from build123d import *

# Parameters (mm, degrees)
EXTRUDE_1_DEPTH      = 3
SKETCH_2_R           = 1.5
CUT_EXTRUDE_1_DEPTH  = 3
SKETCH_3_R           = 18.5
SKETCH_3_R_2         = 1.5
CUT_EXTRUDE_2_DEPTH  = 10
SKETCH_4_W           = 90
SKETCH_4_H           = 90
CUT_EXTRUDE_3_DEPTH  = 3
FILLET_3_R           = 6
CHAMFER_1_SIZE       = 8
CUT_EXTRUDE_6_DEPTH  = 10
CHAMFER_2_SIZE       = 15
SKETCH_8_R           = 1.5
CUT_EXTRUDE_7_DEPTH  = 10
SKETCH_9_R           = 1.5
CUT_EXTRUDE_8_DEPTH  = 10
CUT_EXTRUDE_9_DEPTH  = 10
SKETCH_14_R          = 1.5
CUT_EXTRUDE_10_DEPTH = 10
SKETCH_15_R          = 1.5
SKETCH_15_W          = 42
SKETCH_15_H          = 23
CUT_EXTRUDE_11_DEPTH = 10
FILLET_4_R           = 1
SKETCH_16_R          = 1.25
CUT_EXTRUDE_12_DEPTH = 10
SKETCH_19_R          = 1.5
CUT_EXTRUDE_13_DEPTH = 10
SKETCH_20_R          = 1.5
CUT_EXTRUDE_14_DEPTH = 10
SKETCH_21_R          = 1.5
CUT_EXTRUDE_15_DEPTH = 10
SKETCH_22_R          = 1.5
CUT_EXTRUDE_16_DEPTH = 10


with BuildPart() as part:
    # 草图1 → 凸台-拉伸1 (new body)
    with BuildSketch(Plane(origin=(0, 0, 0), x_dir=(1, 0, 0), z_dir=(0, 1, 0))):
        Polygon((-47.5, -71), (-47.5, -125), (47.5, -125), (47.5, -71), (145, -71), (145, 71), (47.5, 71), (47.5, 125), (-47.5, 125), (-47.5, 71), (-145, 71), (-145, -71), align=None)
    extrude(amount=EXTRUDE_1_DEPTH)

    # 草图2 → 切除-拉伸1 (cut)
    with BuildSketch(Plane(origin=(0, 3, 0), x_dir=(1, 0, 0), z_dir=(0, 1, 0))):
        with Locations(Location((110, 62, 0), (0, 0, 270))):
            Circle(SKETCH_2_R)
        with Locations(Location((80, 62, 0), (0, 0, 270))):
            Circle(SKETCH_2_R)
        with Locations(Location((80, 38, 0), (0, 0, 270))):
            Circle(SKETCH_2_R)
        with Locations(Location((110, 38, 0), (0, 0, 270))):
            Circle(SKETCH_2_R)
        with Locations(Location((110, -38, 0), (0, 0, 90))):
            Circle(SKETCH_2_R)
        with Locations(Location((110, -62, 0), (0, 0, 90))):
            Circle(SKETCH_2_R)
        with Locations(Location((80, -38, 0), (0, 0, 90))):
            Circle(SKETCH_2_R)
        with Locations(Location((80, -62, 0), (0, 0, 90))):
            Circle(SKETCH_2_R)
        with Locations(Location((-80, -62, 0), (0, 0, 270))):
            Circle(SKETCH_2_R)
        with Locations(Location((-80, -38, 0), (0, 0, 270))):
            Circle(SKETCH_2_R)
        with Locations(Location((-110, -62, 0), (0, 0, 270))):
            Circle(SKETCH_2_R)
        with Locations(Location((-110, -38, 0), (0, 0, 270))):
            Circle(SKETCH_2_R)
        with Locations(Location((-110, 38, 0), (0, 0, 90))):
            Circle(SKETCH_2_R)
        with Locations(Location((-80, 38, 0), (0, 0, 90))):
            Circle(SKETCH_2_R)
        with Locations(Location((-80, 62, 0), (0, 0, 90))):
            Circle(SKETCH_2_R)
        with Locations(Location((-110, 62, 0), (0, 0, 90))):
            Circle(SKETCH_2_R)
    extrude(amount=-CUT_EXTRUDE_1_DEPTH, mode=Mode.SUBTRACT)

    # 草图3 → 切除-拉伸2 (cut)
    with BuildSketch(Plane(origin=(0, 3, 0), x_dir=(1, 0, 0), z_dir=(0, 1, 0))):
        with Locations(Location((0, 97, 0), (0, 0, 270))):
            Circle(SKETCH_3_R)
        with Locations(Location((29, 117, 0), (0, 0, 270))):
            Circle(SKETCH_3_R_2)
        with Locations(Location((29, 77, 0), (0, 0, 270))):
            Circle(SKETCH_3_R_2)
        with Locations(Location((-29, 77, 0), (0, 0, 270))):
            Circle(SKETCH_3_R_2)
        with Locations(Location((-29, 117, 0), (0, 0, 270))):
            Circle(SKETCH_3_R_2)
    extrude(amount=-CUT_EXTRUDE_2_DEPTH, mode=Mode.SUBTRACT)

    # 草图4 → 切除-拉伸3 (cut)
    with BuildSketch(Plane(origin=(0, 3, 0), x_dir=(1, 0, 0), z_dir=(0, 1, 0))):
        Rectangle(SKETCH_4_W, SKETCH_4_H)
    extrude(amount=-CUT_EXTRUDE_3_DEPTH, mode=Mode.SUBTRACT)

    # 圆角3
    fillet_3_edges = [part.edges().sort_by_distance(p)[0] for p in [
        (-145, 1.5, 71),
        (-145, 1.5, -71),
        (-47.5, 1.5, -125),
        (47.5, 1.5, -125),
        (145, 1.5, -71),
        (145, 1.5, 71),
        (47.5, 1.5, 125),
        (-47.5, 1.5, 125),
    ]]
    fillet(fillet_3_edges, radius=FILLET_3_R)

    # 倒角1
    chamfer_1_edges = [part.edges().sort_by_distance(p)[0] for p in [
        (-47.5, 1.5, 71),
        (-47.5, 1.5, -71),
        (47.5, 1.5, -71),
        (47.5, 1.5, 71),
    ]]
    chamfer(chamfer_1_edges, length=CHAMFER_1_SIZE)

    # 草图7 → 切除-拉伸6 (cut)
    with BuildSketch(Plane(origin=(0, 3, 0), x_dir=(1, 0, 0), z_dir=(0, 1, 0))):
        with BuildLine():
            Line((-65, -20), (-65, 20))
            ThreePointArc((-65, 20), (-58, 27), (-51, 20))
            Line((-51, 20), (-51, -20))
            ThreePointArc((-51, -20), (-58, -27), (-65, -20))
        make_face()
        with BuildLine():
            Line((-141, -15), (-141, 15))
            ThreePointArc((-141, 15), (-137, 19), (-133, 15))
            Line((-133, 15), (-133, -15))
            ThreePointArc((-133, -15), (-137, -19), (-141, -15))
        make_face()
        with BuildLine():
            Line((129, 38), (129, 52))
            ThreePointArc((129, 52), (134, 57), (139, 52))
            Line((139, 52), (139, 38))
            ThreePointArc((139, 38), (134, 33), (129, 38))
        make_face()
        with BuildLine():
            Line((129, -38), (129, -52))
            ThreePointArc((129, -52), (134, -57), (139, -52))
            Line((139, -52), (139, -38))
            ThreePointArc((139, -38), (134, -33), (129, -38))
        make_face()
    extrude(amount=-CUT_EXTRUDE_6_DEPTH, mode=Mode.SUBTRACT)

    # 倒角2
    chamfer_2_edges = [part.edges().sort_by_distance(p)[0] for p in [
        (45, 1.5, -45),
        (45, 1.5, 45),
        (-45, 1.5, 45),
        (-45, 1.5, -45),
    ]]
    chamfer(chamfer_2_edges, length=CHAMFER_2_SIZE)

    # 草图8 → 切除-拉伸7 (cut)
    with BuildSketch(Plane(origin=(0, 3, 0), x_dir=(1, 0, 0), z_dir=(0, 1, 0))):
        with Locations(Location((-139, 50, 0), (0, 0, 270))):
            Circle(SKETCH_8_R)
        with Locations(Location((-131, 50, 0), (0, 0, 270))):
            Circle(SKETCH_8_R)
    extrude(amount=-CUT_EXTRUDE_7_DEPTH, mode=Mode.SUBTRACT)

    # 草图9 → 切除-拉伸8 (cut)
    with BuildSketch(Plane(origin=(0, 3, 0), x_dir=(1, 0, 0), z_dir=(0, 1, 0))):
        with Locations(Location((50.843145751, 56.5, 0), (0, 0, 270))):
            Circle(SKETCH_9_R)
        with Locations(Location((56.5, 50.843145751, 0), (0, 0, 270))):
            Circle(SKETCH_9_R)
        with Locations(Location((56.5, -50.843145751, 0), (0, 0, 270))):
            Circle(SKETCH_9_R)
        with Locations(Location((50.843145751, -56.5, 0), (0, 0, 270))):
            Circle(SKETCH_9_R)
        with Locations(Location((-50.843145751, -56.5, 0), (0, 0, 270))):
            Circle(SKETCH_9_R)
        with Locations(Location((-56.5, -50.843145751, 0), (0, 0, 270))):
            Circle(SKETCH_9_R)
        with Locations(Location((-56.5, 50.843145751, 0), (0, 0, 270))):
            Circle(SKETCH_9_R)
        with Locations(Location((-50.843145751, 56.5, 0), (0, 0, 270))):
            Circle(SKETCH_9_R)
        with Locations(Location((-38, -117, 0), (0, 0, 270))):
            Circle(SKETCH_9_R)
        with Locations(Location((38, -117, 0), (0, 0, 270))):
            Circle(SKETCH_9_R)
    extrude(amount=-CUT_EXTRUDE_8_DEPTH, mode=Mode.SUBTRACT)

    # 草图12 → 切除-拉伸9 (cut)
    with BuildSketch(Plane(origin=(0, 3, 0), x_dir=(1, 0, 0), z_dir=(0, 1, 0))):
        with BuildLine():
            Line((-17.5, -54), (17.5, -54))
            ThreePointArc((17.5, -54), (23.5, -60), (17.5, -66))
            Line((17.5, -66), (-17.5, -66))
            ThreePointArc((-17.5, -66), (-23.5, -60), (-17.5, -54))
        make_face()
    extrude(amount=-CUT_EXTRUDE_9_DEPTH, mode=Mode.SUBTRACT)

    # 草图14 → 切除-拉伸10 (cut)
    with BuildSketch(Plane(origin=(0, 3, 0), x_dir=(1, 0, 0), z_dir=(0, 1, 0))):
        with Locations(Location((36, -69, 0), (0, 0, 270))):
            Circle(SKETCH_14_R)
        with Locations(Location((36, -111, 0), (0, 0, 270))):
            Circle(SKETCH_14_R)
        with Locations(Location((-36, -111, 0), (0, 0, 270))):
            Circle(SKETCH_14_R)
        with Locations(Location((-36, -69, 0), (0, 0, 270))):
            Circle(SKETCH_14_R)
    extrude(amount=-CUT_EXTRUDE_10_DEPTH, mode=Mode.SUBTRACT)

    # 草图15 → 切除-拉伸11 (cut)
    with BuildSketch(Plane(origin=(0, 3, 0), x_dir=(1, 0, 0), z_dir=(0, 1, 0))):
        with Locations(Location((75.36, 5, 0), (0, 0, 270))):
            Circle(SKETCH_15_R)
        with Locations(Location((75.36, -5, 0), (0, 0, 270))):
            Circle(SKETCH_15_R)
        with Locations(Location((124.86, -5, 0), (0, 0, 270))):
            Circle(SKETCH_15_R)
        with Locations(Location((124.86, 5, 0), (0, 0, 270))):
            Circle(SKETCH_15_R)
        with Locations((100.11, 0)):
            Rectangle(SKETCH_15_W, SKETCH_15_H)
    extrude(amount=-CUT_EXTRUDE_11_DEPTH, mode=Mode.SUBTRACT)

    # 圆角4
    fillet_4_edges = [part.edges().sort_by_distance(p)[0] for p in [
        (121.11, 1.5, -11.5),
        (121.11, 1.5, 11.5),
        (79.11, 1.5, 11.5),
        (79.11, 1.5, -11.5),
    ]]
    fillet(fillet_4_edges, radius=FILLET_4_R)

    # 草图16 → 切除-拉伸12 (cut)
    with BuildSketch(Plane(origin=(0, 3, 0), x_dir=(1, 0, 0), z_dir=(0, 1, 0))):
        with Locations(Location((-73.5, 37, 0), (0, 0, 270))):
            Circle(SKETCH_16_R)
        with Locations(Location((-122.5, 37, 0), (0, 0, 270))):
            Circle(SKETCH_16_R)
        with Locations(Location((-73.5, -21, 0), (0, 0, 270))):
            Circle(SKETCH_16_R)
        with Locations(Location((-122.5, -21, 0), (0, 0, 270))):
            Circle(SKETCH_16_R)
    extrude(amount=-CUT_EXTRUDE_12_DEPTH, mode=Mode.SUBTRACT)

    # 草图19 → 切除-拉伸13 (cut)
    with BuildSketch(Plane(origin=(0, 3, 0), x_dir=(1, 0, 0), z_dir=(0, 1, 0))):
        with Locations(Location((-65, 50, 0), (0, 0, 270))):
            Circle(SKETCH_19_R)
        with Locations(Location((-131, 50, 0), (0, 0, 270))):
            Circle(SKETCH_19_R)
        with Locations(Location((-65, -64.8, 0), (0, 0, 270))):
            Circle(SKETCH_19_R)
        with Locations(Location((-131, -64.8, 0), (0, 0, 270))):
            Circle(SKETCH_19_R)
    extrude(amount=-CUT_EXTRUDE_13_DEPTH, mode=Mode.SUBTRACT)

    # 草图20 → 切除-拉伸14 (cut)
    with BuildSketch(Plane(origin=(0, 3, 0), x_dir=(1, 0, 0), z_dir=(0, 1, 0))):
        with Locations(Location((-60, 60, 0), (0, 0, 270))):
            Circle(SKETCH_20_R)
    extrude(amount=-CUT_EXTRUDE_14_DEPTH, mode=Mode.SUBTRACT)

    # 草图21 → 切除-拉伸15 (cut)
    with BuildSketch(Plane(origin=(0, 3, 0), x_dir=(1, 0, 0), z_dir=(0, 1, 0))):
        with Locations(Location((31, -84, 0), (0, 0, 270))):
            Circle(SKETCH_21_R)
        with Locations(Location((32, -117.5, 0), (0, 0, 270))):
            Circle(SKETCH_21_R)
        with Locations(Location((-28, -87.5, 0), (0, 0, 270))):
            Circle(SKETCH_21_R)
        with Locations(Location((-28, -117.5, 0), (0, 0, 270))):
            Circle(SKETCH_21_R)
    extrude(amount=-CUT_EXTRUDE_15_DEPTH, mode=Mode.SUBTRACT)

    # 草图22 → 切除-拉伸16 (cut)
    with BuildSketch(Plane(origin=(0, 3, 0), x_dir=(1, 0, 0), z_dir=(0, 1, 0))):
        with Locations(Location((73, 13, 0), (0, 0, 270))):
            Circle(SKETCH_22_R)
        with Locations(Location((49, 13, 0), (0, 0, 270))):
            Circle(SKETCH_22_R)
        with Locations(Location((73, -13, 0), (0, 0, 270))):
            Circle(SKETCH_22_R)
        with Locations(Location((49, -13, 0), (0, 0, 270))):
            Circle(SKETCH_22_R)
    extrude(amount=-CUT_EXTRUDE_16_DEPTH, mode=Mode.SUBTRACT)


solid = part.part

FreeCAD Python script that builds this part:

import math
import FreeCAD as App
import Part
import Sketcher
from FreeCAD import Vector
Q = App.Units.Quantity


def edges_at(feature, points):
    """Names of the edges that pass closest to the given points."""
    edges = feature.Shape.Edges
    near = lambda p: min(range(len(edges)), key=lambda i: edges[i].distToShape(Part.Vertex(*p))[0])
    return sorted({f"Edge{near(p) + 1}" for p in points})

doc = App.newDocument("Part")
body = doc.addObject("PartDesign::Body", "Body")

sketch1 = body.newObject("Sketcher::SketchObject", "Sketch")
sketch1.AttachmentSupport = (doc.getObject("XZ_Plane"), [""])
sketch1.MapMode = "FlatFace"
sketch1.addGeometry([
    Part.LineSegment(Vector(-48, 71, 0), Vector(-48, 125, 0)),
    Part.LineSegment(Vector(-48, 125, 0), Vector(48, 125, 0)),
    Part.LineSegment(Vector(48, 125, 0), Vector(48, 71, 0)),
    Part.LineSegment(Vector(48, 71, 0), Vector(145, 71, 0)),
    Part.LineSegment(Vector(145, 71, 0), Vector(145, -71, 0)),
    Part.LineSegment(Vector(145, -71, 0), Vector(48, -71, 0)),
    Part.LineSegment(Vector(48, -71, 0), Vector(48, -125, 0)),
    Part.LineSegment(Vector(48, -125, 0), Vector(-48, -125, 0)),
    Part.LineSegment(Vector(-48, -125, 0), Vector(-48, -71, 0)),
    Part.LineSegment(Vector(-48, -71, 0), Vector(-145, -71, 0)),
    Part.LineSegment(Vector(-145, -71, 0), Vector(-145, 71, 0)),
    Part.LineSegment(Vector(-145, 71, 0), Vector(-48, 71, 0)),
], False)
sketch1.addConstraint([
    Sketcher.Constraint("Coincident", 0, 2, 1, 1),
    Sketcher.Constraint("Coincident", 1, 2, 2, 1),
    Sketcher.Constraint("Coincident", 2, 2, 3, 1),
    Sketcher.Constraint("Coincident", 3, 2, 4, 1),
    Sketcher.Constraint("Coincident", 4, 2, 5, 1),
    Sketcher.Constraint("Coincident", 5, 2, 6, 1),
    Sketcher.Constraint("Coincident", 6, 2, 7, 1),
    Sketcher.Constraint("Coincident", 7, 2, 8, 1),
    Sketcher.Constraint("Coincident", 8, 2, 9, 1),
    Sketcher.Constraint("Coincident", 9, 2, 10, 1),
    Sketcher.Constraint("Coincident", 10, 2, 11, 1),
    Sketcher.Constraint("Coincident", 11, 2, 0, 1),
    Sketcher.Constraint("Vertical", 0),
    Sketcher.Constraint("Horizontal", 1),
    Sketcher.Constraint("Vertical", 2),
    Sketcher.Constraint("Horizontal", 3),
    Sketcher.Constraint("Vertical", 4),
    Sketcher.Constraint("Horizontal", 5),
    Sketcher.Constraint("Vertical", 6),
    Sketcher.Constraint("Horizontal", 7),
    Sketcher.Constraint("Vertical", 8),
    Sketcher.Constraint("Horizontal", 9),
    Sketcher.Constraint("Vertical", 10),
    Sketcher.Constraint("Horizontal", 11),
    Sketcher.Constraint("Symmetric", 0, 2, 6, 2, -1, 1),
    Sketcher.Constraint("Symmetric", 2, 2, 8, 2, -1, 1),
    Sketcher.Constraint("Symmetric", 4, 2, 10, 2, -1, 1),
    Sketcher.Constraint("Symmetric", 5, 2, 8, 2, -2),
    Sketcher.Constraint("DistanceX", 1, 1, 1, 2, Q("95 mm")),
    Sketcher.Constraint("DistanceY", 0, 1, 0, 2, Q("54 mm")),
    Sketcher.Constraint("DistanceY", 4, 2, 4, 1, Q("142 mm")),
    Sketcher.Constraint("DistanceX", 3, 1, 3, 2, Q("97.5 mm")),
])
pad1 = body.newObject("PartDesign::Pad", "Pad")
pad1.Profile = sketch1
pad1.Length = 3
pad1.Reversed = True

sketch2 = body.newObject("Sketcher::SketchObject", "Sketch001")
sketch2.AttachmentSupport = (doc.getObject("XZ_Plane"), [""])
sketch2.MapMode = "FlatFace"
sketch2.AttachmentOffset = App.Placement(Vector(0, 0, -3), App.Rotation())
sketch2.addGeometry([
    Part.Circle(Vector(110, -62, 0), Vector(0, 0, 1), 1.5),
    Part.Circle(Vector(80, -62, 0), Vector(0, 0, 1), 1.5),
    Part.Circle(Vector(80, -38, 0), Vector(0, 0, 1), 1.5),
    Part.Circle(Vector(110, -38, 0), Vector(0, 0, 1), 1.5),
    Part.Circle(Vector(110, 38, 0), Vector(0, 0, 1), 1.5),
    Part.Circle(Vector(110, 62, 0), Vector(0, 0, 1), 1.5),
    Part.Circle(Vector(80, 38, 0), Vector(0, 0, 1), 1.5),
    Part.Circle(Vector(80, 62, 0), Vector(0, 0, 1), 1.5),
    Part.Circle(Vector(-80, 62, 0), Vector(0, 0, 1), 1.5),
    Part.Circle(Vector(-80, 38, 0), Vector(0, 0, 1), 1.5),
    Part.Circle(Vector(-110, 62, 0), Vector(0, 0, 1), 1.5),
    Part.Circle(Vector(-110, 38, 0), Vector(0, 0, 1), 1.5),
    Part.Circle(Vector(-110, -38, 0), Vector(0, 0, 1), 1.5),
    Part.Circle(Vector(-80, -38, 0), Vector(0, 0, 1), 1.5),
    Part.Circle(Vector(-80, -62, 0), Vector(0, 0, 1), 1.5),
    Part.Circle(Vector(-110, -62, 0), Vector(0, 0, 1), 1.5),
], False)
sketch2.addConstraint([
    Sketcher.Constraint("Equal", 0, 1),
    Sketcher.Constraint("Equal", 1, 2),
    Sketcher.Constraint("Equal", 2, 3),
    Sketcher.Constraint("Equal", 3, 4),
    Sketcher.Constraint("Equal", 4, 5),
    Sketcher.Constraint("Equal", 5, 6),
    Sketcher.Constraint("Equal", 6, 7),
    Sketcher.Constraint("Equal", 7, 8),
    Sketcher.Constraint("Equal", 8, 9),
    Sketcher.Constraint("Equal", 9, 10),
    Sketcher.Constraint("Equal", 10, 11),
    Sketcher.Constraint("Equal", 11, 12),
    Sketcher.Constraint("Equal", 12, 13),
    Sketcher.Constraint("Equal", 13, 14),
    Sketcher.Constraint("Equal", 14, 15),
    Sketcher.Constraint("Symmetric", 1, 3, 8, 3, -1, 1),
    Sketcher.Constraint("Symmetric", 2, 3, 9, 3, -1, 1),
    Sketcher.Constraint("Symmetric", 0, 3, 10, 3, -1, 1),
    Sketcher.Constraint("Symmetric", 3, 3, 11, 3, -1, 1),
    Sketcher.Constraint("Symmetric", 4, 3, 12, 3, -1, 1),
    Sketcher.Constraint("Symmetric", 6, 3, 13, 3, -1, 1),
    Sketcher.Constraint("Symmetric", 7, 3, 14, 3, -1, 1),
    Sketcher.Constraint("Symmetric", 5, 3, 15, 3, -1, 1),
    Sketcher.Constraint("Symmetric", 7, 3, 8, 3, -2),
    Sketcher.Constraint("Symmetric", 6, 3, 9, 3, -2),
    Sketcher.Constraint("Symmetric", 5, 3, 10, 3, -2),
    Sketcher.Constraint("Symmetric", 4, 3, 11, 3, -2),
    Sketcher.Constraint("Horizontal", 0, 3, 1, 3),
    Sketcher.Constraint("Horizontal", 2, 3, 3, 3),
    Sketcher.Constraint("Vertical", 1, 3, 2, 3),
    Sketcher.Constraint("Vertical", 0, 3, 3, 3),
    Sketcher.Constraint("Diameter", 0, Q("3 mm")),
    Sketcher.Constraint("DistanceX", -1, 1, 0, 3, Q("110 mm")),
    Sketcher.Constraint("DistanceY", 0, 3, -1, 1, Q("62 mm")),
    Sketcher.Constraint("DistanceX", -1, 1, 1, 3, Q("80 mm")),
    Sketcher.Constraint("DistanceY", 2, 3, -1, 1, Q("38 mm")),
])
pocket1 = body.newObject("PartDesign::Pocket", "Pocket")
pocket1.Profile = sketch2
pocket1.Length = 3
pocket1.Reversed = True

sketch3 = body.newObject("Sketcher::SketchObject", "Sketch002")
sketch3.AttachmentSupport = (doc.getObject("XZ_Plane"), [""])
sketch3.MapMode = "FlatFace"
sketch3.AttachmentOffset = App.Placement(Vector(0, 0, -3), App.Rotation())
sketch3.addGeometry([
    Part.Circle(Vector(0, -97, 0), Vector(0, 0, 1), 18.5),
    Part.Circle(Vector(29, -117, 0), Vector(0, 0, 1), 1.5),
    Part.Circle(Vector(29, -77, 0), Vector(0, 0, 1), 1.5),
    Part.Circle(Vector(-29, -77, 0), Vector(0, 0, 1), 1.5),
    Part.Circle(Vector(-29, -117, 0), Vector(0, 0, 1), 1.5),
], False)
sketch3.addConstraint([
    Sketcher.Constraint("Equal", 1, 2),
    Sketcher.Constraint("Equal", 2, 3),
    Sketcher.Constraint("Equal", 3, 4),
    Sketcher.Constraint("Symmetric", 2, 3, 3, 3, -2),
    Sketcher.Constraint("Symmetric", 1, 3, 4, 3, -2),
    Sketcher.Constraint("PointOnObject", 0, 3, -2),
    Sketcher.Constraint("Vertical", 1, 3, 2, 3),
    Sketcher.Constraint("Diameter", 0, Q("37 mm")),
    Sketcher.Constraint("Diameter", 1, Q("3 mm")),
    Sketcher.Constraint("DistanceY", 0, 3, -1, 1, Q("97 mm")),
    Sketcher.Constraint("DistanceX", -1, 1, 1, 3, Q("29 mm")),
    Sketcher.Constraint("DistanceY", 1, 3, -1, 1, Q("117 mm")),
    Sketcher.Constraint("DistanceY", 2, 3, -1, 1, Q("77 mm")),
])
pocket2 = body.newObject("PartDesign::Pocket", "Pocket001")
pocket2.Profile = sketch3
pocket2.Length = 10
pocket2.Reversed = True

sketch4 = body.newObject("Sketcher::SketchObject", "Sketch003")
sketch4.AttachmentSupport = (doc.getObject("XZ_Plane"), [""])
sketch4.MapMode = "FlatFace"
sketch4.AttachmentOffset = App.Placement(Vector(0, 0, -3), App.Rotation())
sketch4.addGeometry([
    Part.LineSegment(Vector(-45, -45, 0), Vector(-45, 45, 0)),
    Part.LineSegment(Vector(-45, 45, 0), Vector(45, 45, 0)),
    Part.LineSegment(Vector(45, 45, 0), Vector(45, -45, 0)),
    Part.LineSegment(Vector(45, -45, 0), Vector(-45, -45, 0)),
], False)
sketch4.addConstraint([
    Sketcher.Constraint("Coincident", 0, 2, 1, 1),
    Sketcher.Constraint("Coincident", 1, 2, 2, 1),
    Sketcher.Constraint("Coincident", 2, 2, 3, 1),
    Sketcher.Constraint("Coincident", 3, 2, 0, 1),
    Sketcher.Constraint("Vertical", 0),
    Sketcher.Constraint("Horizontal", 1),
    Sketcher.Constraint("Vertical", 2),
    Sketcher.Constraint("Horizontal", 3),
    Sketcher.Constraint("Symmetric", 0, 2, 2, 2, -1, 1),
    Sketcher.Constraint("Equal", 3, 0),
    Sketcher.Constraint("DistanceX", 1, 1, 1, 2, Q("90 mm")),
])
pocket3 = body.newObject("PartDesign::Pocket", "Pocket002")
pocket3.Profile = sketch4
pocket3.Length = 3
pocket3.Reversed = True
doc.recompute()

fillet = body.newObject("PartDesign::Fillet", "Fillet")
fillet.Base = (pocket3, edges_at(pocket3, [
    (-145, 1.5, 71),
    (-145, 1.5, -71),
    (-47.5, 1.5, -125),
    (47.5, 1.5, -125),
    (145, 1.5, -71),
    (145, 1.5, 71),
    (47.5, 1.5, 125),
    (-47.5, 1.5, 125),
]))
fillet.Radius = 6
doc.recompute()

chamfer = body.newObject("PartDesign::Chamfer", "Chamfer")
chamfer.Base = (fillet, edges_at(fillet, [
    (-47.5, 1.5, 71),
    (-47.5, 1.5, -71),
    (47.5, 1.5, -71),
    (47.5, 1.5, 71),
]))
chamfer.Size = 8

sketch5 = body.newObject("Sketcher::SketchObject", "Sketch004")
sketch5.AttachmentSupport = (doc.getObject("XZ_Plane"), [""])
sketch5.MapMode = "FlatFace"
sketch5.AttachmentOffset = App.Placement(Vector(0, 0, -3), App.Rotation())
sketch5.addGeometry([
    Part.LineSegment(Vector(-65, -20, 0), Vector(-65, 20, 0)),
    Part.ArcOfCircle(Part.Circle(Vector(-58, 20, 0), Vector(0, 0, 1), 7), math.radians(0), math.radians(180)),
    Part.LineSegment(Vector(-51, 20, 0), Vector(-51, -20, 0)),
    Part.ArcOfCircle(Part.Circle(Vector(-58, -20, 0), Vector(0, 0, 1), 7), math.radians(180), math.radians(360)),
    Part.LineSegment(Vector(-141, -15, 0), Vector(-141, 15, 0)),
    Part.ArcOfCircle(Part.Circle(Vector(-137, 15, 0), Vector(0, 0, 1), 4), math.radians(0), math.radians(180)),
    Part.LineSegment(Vector(-133, 15, 0), Vector(-133, -15, 0)),
    Part.ArcOfCircle(Part.Circle(Vector(-137, -15, 0), Vector(0, 0, 1), 4), math.radians(180), math.radians(360)),
    Part.LineSegment(Vector(129, -52, 0), Vector(129, -38, 0)),
    Part.ArcOfCircle(Part.Circle(Vector(134, -38, 0), Vector(0, 0, 1), 5), math.radians(0), math.radians(180)),
    Part.LineSegment(Vector(139, -38, 0), Vector(139, -52, 0)),
    Part.ArcOfCircle(Part.Circle(Vector(134, -52, 0), Vector(0, 0, 1), 5), math.radians(180), math.radians(360)),
    Part.LineSegment(Vector(129, 38, 0), Vector(129, 52, 0)),
    Part.ArcOfCircle(Part.Circle(Vector(134, 52, 0), Vector(0, 0, 1), 5), math.radians(0), math.radians(180)),
    Part.LineSegment(Vector(139, 52, 0), Vector(139, 38, 0)),
    Part.ArcOfCircle(Part.Circle(Vector(134, 38, 0), Vector(0, 0, 1), 5), math.radians(180), math.radians(360)),
], False)
sketch5.addConstraint([
    Sketcher.Constraint("Tangent", 0, 2, 1, 2),
    Sketcher.Constraint("Tangent", 1, 1, 2, 1),
    Sketcher.Constraint("Tangent", 2, 2, 3, 2),
    Sketcher.Constraint("Tangent", 3, 1, 0, 1),
    Sketcher.Constraint("Tangent", 4, 2, 5, 2),
    Sketcher.Constraint("Tangent", 5, 1, 6, 1),
    Sketcher.Constraint("Tangent", 6, 2, 7, 2),
    Sketcher.Constraint("Tangent", 7, 1, 4, 1),
    Sketcher.Constraint("Tangent", 8, 2, 9, 2),
    Sketcher.Constraint("Tangent", 9, 1, 10, 1),
    Sketcher.Constraint("Tangent", 10, 2, 11, 2),
    Sketcher.Constraint("Tangent", 11, 1, 8, 1),
    Sketcher.Constraint("Tangent", 12, 2, 13, 2),
    Sketcher.Constraint("Tangent", 13, 1, 14, 1),
    Sketcher.Constraint("Tangent", 14, 2, 15, 2),
    Sketcher.Constraint("Tangent", 15, 1, 12, 1),
    Sketcher.Constraint("Vertical", 0),
    Sketcher.Constraint("Vertical", 2),
    Sketcher.Constraint("Vertical", 4),
    Sketcher.Constraint("Vertical", 6),
    Sketcher.Constraint("Vertical", 8),
    Sketcher.Constraint("Vertical", 10),
    Sketcher.Constraint("Vertical", 12),
    Sketcher.Constraint("Vertical", 14),
    Sketcher.Constraint("Equal", 11, 13),
    Sketcher.Constraint("Symmetric", 11, 3, 13, 3, -1),
    Sketcher.Constraint("Equal", 10, 12),
    Sketcher.Constraint("Radius", 1, Q("7 mm")),
    Sketcher.Constraint("Radius", 5, Q("4 mm")),
    Sketcher.Constraint("Radius", 9, Q("5 mm")),
    Sketcher.Constraint("DistanceY", 0, 1, 0, 2, Q("40 mm")),
    Sketcher.Constraint("DistanceY", 4, 1, 4, 2, Q("30 mm")),
    Sketcher.Constraint("DistanceY", 8, 1, 8, 2, Q("14 mm")),
    Sketcher.Constraint("DistanceX", 1, 3, -1, 1, Q("58 mm")),
    Sketcher.Constraint("DistanceY", -1, 1, 1, 3, Q("20 mm")),
    Sketcher.Constraint("DistanceX", 5, 3, -1, 1, Q("137 mm")),
    Sketcher.Constraint("DistanceY", -1, 1, 5, 3, Q("15 mm")),
    Sketcher.Constraint("DistanceX", -1, 1, 9, 3, Q("134 mm")),
    Sketcher.Constraint("DistanceY", 9, 3, -1, 1, Q("38 mm")),
])
pocket4 = body.newObject("PartDesign::Pocket", "Pocket003")
pocket4.Profile = sketch5
pocket4.Length = 10
pocket4.Reversed = True
doc.recompute()

chamfer2 = body.newObject("PartDesign::Chamfer", "Chamfer001")
chamfer2.Base = (pocket4, edges_at(pocket4, [
    (45, 1.5, -45),
    (45, 1.5, 45),
    (-45, 1.5, 45),
    (-45, 1.5, -45),
]))
chamfer2.Size = 15

sketch6 = body.newObject("Sketcher::SketchObject", "Sketch005")
sketch6.AttachmentSupport = (doc.getObject("XZ_Plane"), [""])
sketch6.MapMode = "FlatFace"
sketch6.AttachmentOffset = App.Placement(Vector(0, 0, -3), App.Rotation())
sketch6.addGeometry([
    Part.Circle(Vector(-139, -50, 0), Vector(0, 0, 1), 1.5),
    Part.Circle(Vector(-131, -50, 0), Vector(0, 0, 1), 1.5),
], False)
sketch6.addConstraint([
    Sketcher.Constraint("Equal", 0, 1),
    Sketcher.Constraint("Horizontal", 0, 3, 1, 3),
    Sketcher.Constraint("Diameter", 0, Q("3 mm")),
    Sketcher.Constraint("DistanceX", 0, 3, -1, 1, Q("139 mm")),
    Sketcher.Constraint("DistanceY", 0, 3, -1, 1, Q("50 mm")),
    Sketcher.Constraint("DistanceX", 1, 3, -1, 1, Q("131 mm")),
])
pocket5 = body.newObject("PartDesign::Pocket", "Pocket004")
pocket5.Profile = sketch6
pocket5.Length = 10
pocket5.Reversed = True

sketch7 = body.newObject("Sketcher::SketchObject", "Sketch006")
sketch7.AttachmentSupport = (doc.getObject("XZ_Plane"), [""])
sketch7.MapMode = "FlatFace"
sketch7.AttachmentOffset = App.Placement(Vector(0, 0, -3), App.Rotation())
sketch7.addGeometry([
    Part.Circle(Vector(50.8, -56.5, 0), Vector(0, 0, 1), 1.5),
    Part.Circle(Vector(56.5, -50.8, 0), Vector(0, 0, 1), 1.5),
    Part.Circle(Vector(56.5, 50.8, 0), Vector(0, 0, 1), 1.5),
    Part.Circle(Vector(50.8, 56.5, 0), Vector(0, 0, 1), 1.5),
    Part.Circle(Vector(-50.8, 56.5, 0), Vector(0, 0, 1), 1.5),
    Part.Circle(Vector(-56.5, 50.8, 0), Vector(0, 0, 1), 1.5),
    Part.Circle(Vector(-56.5, -50.8, 0), Vector(0, 0, 1), 1.5),
    Part.Circle(Vector(-50.8, -56.5, 0), Vector(0, 0, 1), 1.5),
    Part.Circle(Vector(-38, 117, 0), Vector(0, 0, 1), 1.5),
    Part.Circle(Vector(38, 117, 0), Vector(0, 0, 1), 1.5),
], False)
sketch7.addConstraint([
    Sketcher.Constraint("Equal", 0, 1),
    Sketcher.Constraint("Equal", 1, 2),
    Sketcher.Constraint("Equal", 2, 3),
    Sketcher.Constraint("Equal", 3, 4),
    Sketcher.Constraint("Equal", 4, 5),
    Sketcher.Constraint("Equal", 5, 6),
    Sketcher.Constraint("Equal", 6, 7),
    Sketcher.Constraint("Equal", 7, 8),
    Sketcher.Constraint("Equal", 8, 9),
    Sketcher.Constraint("Symmetric", 0, 3, 4, 3, -1, 1),
    Sketcher.Constraint("Symmetric", 1, 3, 5, 3, -1, 1),
    Sketcher.Constraint("Symmetric", 2, 3, 6, 3, -1, 1),
    Sketcher.Constraint("Symmetric", 3, 3, 7, 3, -1, 1),
    Sketcher.Constraint("Symmetric", 3, 3, 4, 3, -2),
    Sketcher.Constraint("Symmetric", 2, 3, 5, 3, -2),
    Sketcher.Constraint("Symmetric", 8, 3, 9, 3, -2),
    Sketcher.Constraint("Diameter", 0, Q("3 mm")),
    Sketcher.Constraint("DistanceX", 8, 3, -1, 1, Q("38 mm")),
    Sketcher.Constraint("DistanceY", -1, 1, 8, 3, Q("117 mm")),
    Sketcher.Constraint("DistanceY", 0, 3, 3, 3, Q("113 mm")),
    Sketcher.Constraint("DistanceX", 5, 3, 2, 3, Q("113 mm")),
    Sketcher.Constraint("DistanceY", 1, 3, 2, 3, Q("101.686292 mm")),
    Sketcher.Constraint("DistanceX", 4, 3, 3, 3, Q("101.686292 mm")),
])
pocket6 = body.newObject("PartDesign::Pocket", "Pocket005")
pocket6.Profile = sketch7
pocket6.Length = 10
pocket6.Reversed = True

sketch8 = body.newObject("Sketcher::SketchObject", "Sketch007")
sketch8.AttachmentSupport = (doc.getObject("XZ_Plane"), [""])
sketch8.MapMode = "FlatFace"
sketch8.AttachmentOffset = App.Placement(Vector(0, 0, -3), App.Rotation())
sketch8.addGeometry([
    Part.LineSegment(Vector(18, 54, 0), Vector(-18, 54, 0)),
    Part.ArcOfCircle(Part.Circle(Vector(-18, 60, 0), Vector(0, 0, 1), 6), math.radians(90), math.radians(270)),
    Part.LineSegment(Vector(-18, 66, 0), Vector(18, 66, 0)),
    Part.ArcOfCircle(Part.Circle(Vector(18, 60, 0), Vector(0, 0, 1), 6), math.radians(-90), math.radians(90)),
], False)
sketch8.addConstraint([
    Sketcher.Constraint("Tangent", 0, 2, 1, 2),
    Sketcher.Constraint("Tangent", 1, 1, 2, 1),
    Sketcher.Constraint("Tangent", 2, 2, 3, 2),
    Sketcher.Constraint("Tangent", 3, 1, 0, 1),
    Sketcher.Constraint("Horizontal", 0),
    Sketcher.Constraint("Horizontal", 2),
    Sketcher.Constraint("Radius", 1, Q("6 mm")),
    Sketcher.Constraint("DistanceX", 0, 2, 0, 1, Q("35 mm")),
    Sketcher.Constraint("DistanceY", -1, 1, 1, 3, Q("60 mm")),
    Sketcher.Constraint("DistanceX", 1, 3, -1, 1, Q("17.5 mm")),
])
pocket7 = body.newObject("PartDesign::Pocket", "Pocket006")
pocket7.Profile = sketch8
pocket7.Length = 10
pocket7.Reversed = True

sketch9 = body.newObject("Sketcher::SketchObject", "Sketch008")
sketch9.AttachmentSupport = (doc.getObject("XZ_Plane"), [""])
sketch9.MapMode = "FlatFace"
sketch9.AttachmentOffset = App.Placement(Vector(0, 0, -3), App.Rotation())
sketch9.addGeometry([
    Part.Circle(Vector(36, 69, 0), Vector(0, 0, 1), 1.5),
    Part.Circle(Vector(36, 111, 0), Vector(0, 0, 1), 1.5),
    Part.Circle(Vector(-36, 111, 0), Vector(0, 0, 1), 1.5),
    Part.Circle(Vector(-36, 69, 0), Vector(0, 0, 1), 1.5),
], False)
sketch9.addConstraint([
    Sketcher.Constraint("Equal", 0, 1),
    Sketcher.Constraint("Equal", 1, 2),
    Sketcher.Constraint("Equal", 2, 3),
    Sketcher.Constraint("Symmetric", 1, 3, 2, 3, -2),
    Sketcher.Constraint("Symmetric", 0, 3, 3, 3, -2),
    Sketcher.Constraint("Vertical", 0, 3, 1, 3),
    Sketcher.Constraint("Diameter", 0, Q("3 mm")),
    Sketcher.Constraint("DistanceX", -1, 1, 0, 3, Q("36 mm")),
    Sketcher.Constraint("DistanceY", -1, 1, 0, 3, Q("69 mm")),
    Sketcher.Constraint("DistanceY", -1, 1, 1, 3, Q("111 mm")),
])
pocket8 = body.newObject("PartDesign::Pocket", "Pocket007")
pocket8.Profile = sketch9
pocket8.Length = 10
pocket8.Reversed = True

sketch10 = body.newObject("Sketcher::SketchObject", "Sketch009")
sketch10.AttachmentSupport = (doc.getObject("XZ_Plane"), [""])
sketch10.MapMode = "FlatFace"
sketch10.AttachmentOffset = App.Placement(Vector(0, 0, -3), App.Rotation())
sketch10.addGeometry([
    Part.Circle(Vector(75.4, -5, 0), Vector(0, 0, 1), 1.5),
    Part.Circle(Vector(75.4, 5, 0), Vector(0, 0, 1), 1.5),
    Part.Circle(Vector(124.9, 5, 0), Vector(0, 0, 1), 1.5),
    Part.Circle(Vector(124.9, -5, 0), Vector(0, 0, 1), 1.5),
    Part.LineSegment(Vector(79.1, -11.5, 0), Vector(79.1, 11.5, 0)),
    Part.LineSegment(Vector(79.1, 11.5, 0), Vector(121.1, 11.5, 0)),
    Part.LineSegment(Vector(121.1, 11.5, 0), Vector(121.1, -11.5, 0)),
    Part.LineSegment(Vector(121.1, -11.5, 0), Vector(79.1, -11.5, 0)),
], False)
sketch10.addConstraint([
    Sketcher.Constraint("Coincident", 4, 2, 5, 1),
    Sketcher.Constraint("Coincident", 5, 2, 6, 1),
    Sketcher.Constraint("Coincident", 6, 2, 7, 1),
    Sketcher.Constraint("Coincident", 7, 2, 4, 1),
    Sketcher.Constraint("Vertical", 4),
    Sketcher.Constraint("Horizontal", 5),
    Sketcher.Constraint("Vertical", 6),
    Sketcher.Constraint("Horizontal", 7),
    Sketcher.Constraint("Equal", 0, 1),
    Sketcher.Constraint("Equal", 1, 2),
    Sketcher.Constraint("Equal", 2, 3),
    Sketcher.Constraint("Symmetric", 0, 3, 1, 3, -1),
    Sketcher.Constraint("Symmetric", 2, 3, 3, 3, -1),
    Sketcher.Constraint("Horizontal", 1, 3, 2, 3),
    Sketcher.Constraint("Diameter", 0, Q("3 mm")),
    Sketcher.Constraint("DistanceX", 5, 1, 5, 2, Q("42 mm")),
    Sketcher.Constraint("DistanceY", 4, 1, 4, 2, Q("23 mm")),
    Sketcher.Constraint("DistanceY", 0, 3, -1, 1, Q("5 mm")),
    Sketcher.Constraint("DistanceY", -1, 1, 4, 2, Q("11.5 mm")),
    Sketcher.Constraint("DistanceX", 1, 3, 2, 3, Q("49.5 mm")),
    Sketcher.Constraint("DistanceX", -1, 1, 0, 3, Q("75.36 mm")),
    Sketcher.Constraint("DistanceX", -1, 1, 4, 2, Q("79.11 mm")),
])
pocket9 = body.newObject("PartDesign::Pocket", "Pocket008")
pocket9.Profile = sketch10
pocket9.Length = 10
pocket9.Reversed = True
doc.recompute()

fillet2 = body.newObject("PartDesign::Fillet", "Fillet001")
fillet2.Base = (pocket9, edges_at(pocket9, [
    (121.11, 1.5, -11.5),
    (121.11, 1.5, 11.5),
    (79.11, 1.5, 11.5),
    (79.11, 1.5, -11.5),
]))
fillet2.Radius = 1

sketch11 = body.newObject("Sketcher::SketchObject", "Sketch010")
sketch11.AttachmentSupport = (doc.getObject("XZ_Plane"), [""])
sketch11.MapMode = "FlatFace"
sketch11.AttachmentOffset = App.Placement(Vector(0, 0, -3), App.Rotation())
sketch11.addGeometry([
    Part.Circle(Vector(-73.5, -37, 0), Vector(0, 0, 1), 1.2),
    Part.Circle(Vector(-122.5, -37, 0), Vector(0, 0, 1), 1.2),
    Part.Circle(Vector(-73.5, 21, 0), Vector(0, 0, 1), 1.2),
    Part.Circle(Vector(-122.5, 21, 0), Vector(0, 0, 1), 1.2),
], False)
sketch11.addConstraint([
    Sketcher.Constraint("Equal", 0, 1),
    Sketcher.Constraint("Equal", 1, 2),
    Sketcher.Constraint("Equal", 2, 3),
    Sketcher.Constraint("Horizontal", 0, 3, 1, 3),
    Sketcher.Constraint("Horizontal", 2, 3, 3, 3),
    Sketcher.Constraint("Vertical", 0, 3, 2, 3),
    Sketcher.Constraint("Vertical", 1, 3, 3, 3),
    Sketcher.Constraint("Diameter", 0, Q("2.5 mm")),
    Sketcher.Constraint("DistanceY", 0, 3, -1, 1, Q("37 mm")),
    Sketcher.Constraint("DistanceY", -1, 1, 2, 3, Q("21 mm")),
    Sketcher.Constraint("DistanceX", 1, 3, 0, 3, Q("49 mm")),
    Sketcher.Constraint("DistanceX", 0, 3, -1, 1, Q("73.5 mm")),
])
pocket10 = body.newObject("PartDesign::Pocket", "Pocket009")
pocket10.Profile = sketch11
pocket10.Length = 10
pocket10.Reversed = True

sketch12 = body.newObject("Sketcher::SketchObject", "Sketch011")
sketch12.AttachmentSupport = (doc.getObject("XZ_Plane"), [""])
sketch12.MapMode = "FlatFace"
sketch12.AttachmentOffset = App.Placement(Vector(0, 0, -3), App.Rotation())
sketch12.addGeometry([
    Part.Circle(Vector(-65, -50, 0), Vector(0, 0, 1), 1.5),
    Part.Circle(Vector(-131, -50, 0), Vector(0, 0, 1), 1.5),
    Part.Circle(Vector(-65, 64.8, 0), Vector(0, 0, 1), 1.5),
    Part.Circle(Vector(-131, 64.8, 0), Vector(0, 0, 1), 1.5),
], False)
sketch12.addConstraint([
    Sketcher.Constraint("Equal", 0, 1),
    Sketcher.Constraint("Equal", 1, 2),
    Sketcher.Constraint("Equal", 2, 3),
    Sketcher.Constraint("Horizontal", 0, 3, 1, 3),
    Sketcher.Constraint("Horizontal", 2, 3, 3, 3),
    Sketcher.Constraint("Vertical", 0, 3, 2, 3),
    Sketcher.Constraint("Vertical", 1, 3, 3, 3),
    Sketcher.Constraint("Diameter", 0, Q("3 mm")),
    Sketcher.Constraint("DistanceX", 0, 3, -1, 1, Q("65 mm")),
    Sketcher.Constraint("DistanceY", 0, 3, -1, 1, Q("50 mm")),
    Sketcher.Constraint("DistanceX", 1, 3, -1, 1, Q("131 mm")),
    Sketcher.Constraint("DistanceY", -1, 1, 2, 3, Q("64.8 mm")),
])
pocket11 = body.newObject("PartDesign::Pocket", "Pocket010")
pocket11.Profile = sketch12
pocket11.Length = 10
pocket11.Reversed = True

sketch13 = body.newObject("Sketcher::SketchObject", "Sketch012")
sketch13.AttachmentSupport = (doc.getObject("XZ_Plane"), [""])
sketch13.MapMode = "FlatFace"
sketch13.AttachmentOffset = App.Placement(Vector(0, 0, -3), App.Rotation())
sketch13.addGeometry(Part.Circle(Vector(-60, -60, 0), Vector(0, 0, 1), 1.5), False)
sketch13.addConstraint([
    Sketcher.Constraint("Diameter", 0, Q("3 mm")),
    Sketcher.Constraint("DistanceX", 0, 3, -1, 1, Q("60 mm")),
    Sketcher.Constraint("DistanceY", 0, 3, -1, 1, Q("60 mm")),
])
pocket12 = body.newObject("PartDesign::Pocket", "Pocket011")
pocket12.Profile = sketch13
pocket12.Length = 10
pocket12.Reversed = True

sketch14 = body.newObject("Sketcher::SketchObject", "Sketch013")
sketch14.AttachmentSupport = (doc.getObject("XZ_Plane"), [""])
sketch14.MapMode = "FlatFace"
sketch14.AttachmentOffset = App.Placement(Vector(0, 0, -3), App.Rotation())
sketch14.addGeometry([
    Part.Circle(Vector(31, 84, 0), Vector(0, 0, 1), 1.5),
    Part.Circle(Vector(32, 117.5, 0), Vector(0, 0, 1), 1.5),
    Part.Circle(Vector(-28, 87.5, 0), Vector(0, 0, 1), 1.5),
    Part.Circle(Vector(-28, 117.5, 0), Vector(0, 0, 1), 1.5),
], False)
sketch14.addConstraint([
    Sketcher.Constraint("Equal", 0, 1),
    Sketcher.Constraint("Equal", 1, 2),
    Sketcher.Constraint("Equal", 2, 3),
    Sketcher.Constraint("Horizontal", 1, 3, 3, 3),
    Sketcher.Constraint("Vertical", 2, 3, 3, 3),
    Sketcher.Constraint("Diameter", 0, Q("3 mm")),
    Sketcher.Constraint("DistanceX", -1, 1, 0, 3, Q("31 mm")),
    Sketcher.Constraint("DistanceY", -1, 1, 0, 3, Q("84 mm")),
    Sketcher.Constraint("DistanceX", -1, 1, 1, 3, Q("32 mm")),
    Sketcher.Constraint("DistanceX", 2, 3, -1, 1, Q("28 mm")),
    Sketcher.Constraint("DistanceY", 2, 3, 1, 3, Q("30 mm")),
    Sketcher.Constraint("DistanceY", -1, 1, 1, 3, Q("117.5 mm")),
])
pocket13 = body.newObject("PartDesign::Pocket", "Pocket012")
pocket13.Profile = sketch14
pocket13.Length = 10
pocket13.Reversed = True

sketch15 = body.newObject("Sketcher::SketchObject", "Sketch014")
sketch15.AttachmentSupport = (doc.getObject("XZ_Plane"), [""])
sketch15.MapMode = "FlatFace"
sketch15.AttachmentOffset = App.Placement(Vector(0, 0, -3), App.Rotation())
sketch15.addGeometry([
    Part.Circle(Vector(73, -13, 0), Vector(0, 0, 1), 1.5),
    Part.Circle(Vector(49, -13, 0), Vector(0, 0, 1), 1.5),
    Part.Circle(Vector(73, 13, 0), Vector(0, 0, 1), 1.5),
    Part.Circle(Vector(49, 13, 0), Vector(0, 0, 1), 1.5),
], False)
sketch15.addConstraint([
    Sketcher.Constraint("Equal", 0, 1),
    Sketcher.Constraint("Equal", 1, 2),
    Sketcher.Constraint("Equal", 2, 3),
    Sketcher.Constraint("Symmetric", 0, 3, 2, 3, -1),
    Sketcher.Constraint("Symmetric", 1, 3, 3, 3, -1),
    Sketcher.Constraint("Horizontal", 0, 3, 1, 3),
    Sketcher.Constraint("Diameter", 0, Q("3 mm")),
    Sketcher.Constraint("DistanceX", -1, 1, 0, 3, Q("73 mm")),
    Sketcher.Constraint("DistanceY", 0, 3, -1, 1, Q("13 mm")),
    Sketcher.Constraint("DistanceX", -1, 1, 1, 3, Q("49 mm")),
])
pocket14 = body.newObject("PartDesign::Pocket", "Pocket013")
pocket14.Profile = sketch15
pocket14.Length = 10
pocket14.Reversed = True

doc.recompute()
